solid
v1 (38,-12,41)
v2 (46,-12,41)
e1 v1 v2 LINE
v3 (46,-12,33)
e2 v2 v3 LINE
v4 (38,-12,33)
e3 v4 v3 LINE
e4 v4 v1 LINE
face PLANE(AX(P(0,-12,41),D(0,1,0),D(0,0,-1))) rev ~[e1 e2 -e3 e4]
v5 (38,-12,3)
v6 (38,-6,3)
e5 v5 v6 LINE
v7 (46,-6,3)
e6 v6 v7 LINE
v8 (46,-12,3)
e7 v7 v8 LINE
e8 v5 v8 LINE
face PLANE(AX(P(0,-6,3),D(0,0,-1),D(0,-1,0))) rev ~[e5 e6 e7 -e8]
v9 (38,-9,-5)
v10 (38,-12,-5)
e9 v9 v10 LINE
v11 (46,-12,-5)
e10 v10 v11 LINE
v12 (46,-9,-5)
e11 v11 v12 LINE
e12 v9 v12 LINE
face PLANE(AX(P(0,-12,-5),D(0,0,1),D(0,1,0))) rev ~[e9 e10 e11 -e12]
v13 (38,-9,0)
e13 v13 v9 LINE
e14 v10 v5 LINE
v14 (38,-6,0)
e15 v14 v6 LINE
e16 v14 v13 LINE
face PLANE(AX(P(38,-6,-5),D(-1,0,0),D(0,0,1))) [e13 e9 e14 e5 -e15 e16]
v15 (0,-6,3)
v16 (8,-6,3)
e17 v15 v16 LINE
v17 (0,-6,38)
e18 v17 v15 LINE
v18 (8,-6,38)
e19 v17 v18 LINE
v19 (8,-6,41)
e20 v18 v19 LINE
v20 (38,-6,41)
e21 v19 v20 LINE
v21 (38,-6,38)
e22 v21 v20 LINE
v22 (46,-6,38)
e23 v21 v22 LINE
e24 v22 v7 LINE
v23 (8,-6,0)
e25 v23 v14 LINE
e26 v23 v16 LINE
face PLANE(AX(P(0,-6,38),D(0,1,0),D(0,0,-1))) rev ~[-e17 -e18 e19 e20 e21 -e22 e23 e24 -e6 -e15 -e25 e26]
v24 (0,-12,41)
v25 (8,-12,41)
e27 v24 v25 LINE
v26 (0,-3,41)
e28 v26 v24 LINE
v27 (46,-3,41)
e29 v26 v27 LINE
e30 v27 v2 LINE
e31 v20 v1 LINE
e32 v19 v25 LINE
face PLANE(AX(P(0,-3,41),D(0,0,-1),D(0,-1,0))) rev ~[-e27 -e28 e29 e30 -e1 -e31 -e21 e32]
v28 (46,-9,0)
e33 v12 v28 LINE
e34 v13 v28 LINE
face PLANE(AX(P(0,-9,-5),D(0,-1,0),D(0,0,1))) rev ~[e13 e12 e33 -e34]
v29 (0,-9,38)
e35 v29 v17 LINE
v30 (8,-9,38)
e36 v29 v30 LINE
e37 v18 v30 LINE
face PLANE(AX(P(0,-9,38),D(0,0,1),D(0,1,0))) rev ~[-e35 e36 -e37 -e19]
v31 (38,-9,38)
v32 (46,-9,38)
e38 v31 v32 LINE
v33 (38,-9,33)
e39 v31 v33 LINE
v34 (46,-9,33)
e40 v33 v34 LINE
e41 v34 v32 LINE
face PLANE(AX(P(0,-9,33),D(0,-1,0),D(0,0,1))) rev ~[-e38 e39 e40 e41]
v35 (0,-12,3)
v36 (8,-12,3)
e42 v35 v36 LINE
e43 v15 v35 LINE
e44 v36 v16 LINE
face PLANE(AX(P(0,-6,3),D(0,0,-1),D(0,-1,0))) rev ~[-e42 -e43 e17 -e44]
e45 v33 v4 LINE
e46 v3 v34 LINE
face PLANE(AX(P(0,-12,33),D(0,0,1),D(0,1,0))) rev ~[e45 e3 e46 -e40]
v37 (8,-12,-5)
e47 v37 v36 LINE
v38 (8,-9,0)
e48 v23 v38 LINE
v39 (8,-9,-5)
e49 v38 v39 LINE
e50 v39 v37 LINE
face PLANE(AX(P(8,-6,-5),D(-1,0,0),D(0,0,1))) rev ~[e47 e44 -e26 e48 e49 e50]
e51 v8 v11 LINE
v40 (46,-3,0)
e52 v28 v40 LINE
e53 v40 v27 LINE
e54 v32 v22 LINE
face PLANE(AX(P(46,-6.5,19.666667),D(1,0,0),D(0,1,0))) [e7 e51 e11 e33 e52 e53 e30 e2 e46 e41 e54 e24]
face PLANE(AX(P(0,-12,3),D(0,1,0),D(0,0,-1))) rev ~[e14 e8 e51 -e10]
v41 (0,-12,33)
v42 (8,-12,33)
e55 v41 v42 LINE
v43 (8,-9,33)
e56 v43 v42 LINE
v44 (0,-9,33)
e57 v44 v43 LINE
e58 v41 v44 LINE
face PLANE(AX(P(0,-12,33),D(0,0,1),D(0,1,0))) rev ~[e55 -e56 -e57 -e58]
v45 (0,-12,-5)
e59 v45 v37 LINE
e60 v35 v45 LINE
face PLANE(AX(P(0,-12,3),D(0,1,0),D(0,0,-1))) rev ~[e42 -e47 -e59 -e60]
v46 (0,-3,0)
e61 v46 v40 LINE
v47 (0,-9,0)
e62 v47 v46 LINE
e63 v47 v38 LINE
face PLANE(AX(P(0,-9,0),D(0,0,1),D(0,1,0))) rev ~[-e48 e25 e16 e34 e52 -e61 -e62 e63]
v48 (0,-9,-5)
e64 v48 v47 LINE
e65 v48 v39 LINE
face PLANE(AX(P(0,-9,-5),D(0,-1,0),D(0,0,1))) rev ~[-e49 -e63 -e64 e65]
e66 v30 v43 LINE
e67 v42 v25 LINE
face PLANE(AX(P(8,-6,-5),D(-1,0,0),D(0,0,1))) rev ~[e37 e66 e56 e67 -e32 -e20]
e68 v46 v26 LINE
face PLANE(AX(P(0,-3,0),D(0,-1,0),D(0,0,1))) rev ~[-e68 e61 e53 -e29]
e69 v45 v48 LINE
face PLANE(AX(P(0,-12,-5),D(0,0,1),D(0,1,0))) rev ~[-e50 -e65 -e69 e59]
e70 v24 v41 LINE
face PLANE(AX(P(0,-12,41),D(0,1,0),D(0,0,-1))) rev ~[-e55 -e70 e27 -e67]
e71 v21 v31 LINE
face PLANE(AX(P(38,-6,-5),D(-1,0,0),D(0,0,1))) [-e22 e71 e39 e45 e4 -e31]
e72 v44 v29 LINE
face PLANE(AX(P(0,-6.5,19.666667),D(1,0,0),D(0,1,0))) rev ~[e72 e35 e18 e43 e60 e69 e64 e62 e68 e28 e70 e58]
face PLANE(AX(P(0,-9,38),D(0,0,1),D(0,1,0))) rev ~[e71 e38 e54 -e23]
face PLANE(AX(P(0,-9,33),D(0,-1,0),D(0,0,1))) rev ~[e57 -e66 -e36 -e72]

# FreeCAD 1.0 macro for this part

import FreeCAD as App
import Part
import Sketcher

V = App.Vector


def add_polygon(sketch, points):
    """Adds a closed chain of lines whose ends are joined by coincident constraints."""
    first, n = sketch.GeometryCount, len(points)
    for a, b in zip(points, points[1:] + points[:1]):
        sketch.addGeometry(Part.LineSegment(App.Vector(*a, 0), App.Vector(*b, 0)), False)
    for i in range(n):
        sketch.addConstraint(Sketcher.Constraint("Coincident", first + i, 2, first + (i + 1) % n, 1))

doc = App.newDocument("Part")
body = doc.addObject("PartDesign::Body", "Body")

# Sketch on YZ plane
sketch1 = doc.addObject("Sketcher::SketchObject", "Sketch")
body.addObject(sketch1)
sketch1.AttachmentSupport = (doc.YZ_Plane, [""])
sketch1.MapMode = "FlatFace"
add_polygon(sketch1, [(-9, 38), (-6, 38), (-6, 3), (-12, 3), (-12, -5), (-9, -5), (-9, 0), (-3, 0), (-3, 41), (-12, 41), (-12, 33), (-9, 33)])  # lines 0-11
sketch1.addConstraint([
    Sketcher.Constraint("Horizontal", 0),
    Sketcher.Constraint("Vertical", 1),
    Sketcher.Constraint("Horizontal", 2),
    Sketcher.Constraint("Vertical", 3),
    Sketcher.Constraint("Horizontal", 4),
    Sketcher.Constraint("Vertical", 5),
    Sketcher.Constraint("Horizontal", 6),
    Sketcher.Constraint("Vertical", 7),
    Sketcher.Constraint("Horizontal", 8),
    Sketcher.Constraint("Vertical", 9),
    Sketcher.Constraint("Horizontal", 10),
    Sketcher.Constraint("Vertical", 11),
    Sketcher.Constraint("PointOnObject", 5, 2, -1),
    Sketcher.Constraint("Vertical", 3, 2, 8, 2),
    Sketcher.Constraint("Vertical", 5, 2, 10, 2),
    Sketcher.Constraint("Equal", 0, 4),
    Sketcher.Constraint("Equal", 2, 6),
    Sketcher.Constraint("Equal", 3, 9),
    Sketcher.Constraint("Equal", 5, 11),
    Sketcher.Constraint("DistanceX", 0, 1, 0, 2, 3.0),
    Sketcher.Constraint("DistanceY", 1, 2, 1, 1, 35.0),
    Sketcher.Constraint("DistanceY", 3, 2, 3, 1, 8.0),
    Sketcher.Constraint("DistanceY", 5, 1, 5, 2, 5.0),
    Sketcher.Constraint("DistanceX", 0, 2, -1, 1, 6.0),
])
pad1 = doc.addObject("PartDesign::Pad", "Pad")
body.addObject(pad1)
pad1.Profile = sketch1
pad1.Length = 46

# Sketch on XZ plane
sketch2 = doc.addObject("Sketcher::SketchObject", "Sketch001")
body.addObject(sketch2)
sketch2.AttachmentSupport = (doc.XZ_Plane, [""])
sketch2.MapMode = "FlatFace"
sketch2.AttachmentOffset = App.Placement(V(0, 0, 6), App.Rotation())
add_polygon(sketch2, [(8, 41), (8, -5), (38, -5), (38, 41)])  # lines 0-3
sketch2.addConstraint([
    Sketcher.Constraint("Vertical", 0),
    Sketcher.Constraint("Horizontal", 1),
    Sketcher.Constraint("Vertical", 2),
    Sketcher.Constraint("Horizontal", 3),
    Sketcher.Constraint("DistanceX", 1, 1, 1, 2, 30.0),
    Sketcher.Constraint("DistanceY", 0, 2, 0, 1, 46.0),
    Sketcher.Constraint("DistanceX", -1, 1, 0, 2, 8.0),
    Sketcher.Constraint("DistanceY", 0, 2, -1, 1, 5.0),
])
pocket1 = doc.addObject("PartDesign::Pocket", "Pocket")
body.addObject(pocket1)
pocket1.Profile = sketch2
pocket1.Type = "ThroughAll"
pocket1.Reversed = True

doc.recompute()
